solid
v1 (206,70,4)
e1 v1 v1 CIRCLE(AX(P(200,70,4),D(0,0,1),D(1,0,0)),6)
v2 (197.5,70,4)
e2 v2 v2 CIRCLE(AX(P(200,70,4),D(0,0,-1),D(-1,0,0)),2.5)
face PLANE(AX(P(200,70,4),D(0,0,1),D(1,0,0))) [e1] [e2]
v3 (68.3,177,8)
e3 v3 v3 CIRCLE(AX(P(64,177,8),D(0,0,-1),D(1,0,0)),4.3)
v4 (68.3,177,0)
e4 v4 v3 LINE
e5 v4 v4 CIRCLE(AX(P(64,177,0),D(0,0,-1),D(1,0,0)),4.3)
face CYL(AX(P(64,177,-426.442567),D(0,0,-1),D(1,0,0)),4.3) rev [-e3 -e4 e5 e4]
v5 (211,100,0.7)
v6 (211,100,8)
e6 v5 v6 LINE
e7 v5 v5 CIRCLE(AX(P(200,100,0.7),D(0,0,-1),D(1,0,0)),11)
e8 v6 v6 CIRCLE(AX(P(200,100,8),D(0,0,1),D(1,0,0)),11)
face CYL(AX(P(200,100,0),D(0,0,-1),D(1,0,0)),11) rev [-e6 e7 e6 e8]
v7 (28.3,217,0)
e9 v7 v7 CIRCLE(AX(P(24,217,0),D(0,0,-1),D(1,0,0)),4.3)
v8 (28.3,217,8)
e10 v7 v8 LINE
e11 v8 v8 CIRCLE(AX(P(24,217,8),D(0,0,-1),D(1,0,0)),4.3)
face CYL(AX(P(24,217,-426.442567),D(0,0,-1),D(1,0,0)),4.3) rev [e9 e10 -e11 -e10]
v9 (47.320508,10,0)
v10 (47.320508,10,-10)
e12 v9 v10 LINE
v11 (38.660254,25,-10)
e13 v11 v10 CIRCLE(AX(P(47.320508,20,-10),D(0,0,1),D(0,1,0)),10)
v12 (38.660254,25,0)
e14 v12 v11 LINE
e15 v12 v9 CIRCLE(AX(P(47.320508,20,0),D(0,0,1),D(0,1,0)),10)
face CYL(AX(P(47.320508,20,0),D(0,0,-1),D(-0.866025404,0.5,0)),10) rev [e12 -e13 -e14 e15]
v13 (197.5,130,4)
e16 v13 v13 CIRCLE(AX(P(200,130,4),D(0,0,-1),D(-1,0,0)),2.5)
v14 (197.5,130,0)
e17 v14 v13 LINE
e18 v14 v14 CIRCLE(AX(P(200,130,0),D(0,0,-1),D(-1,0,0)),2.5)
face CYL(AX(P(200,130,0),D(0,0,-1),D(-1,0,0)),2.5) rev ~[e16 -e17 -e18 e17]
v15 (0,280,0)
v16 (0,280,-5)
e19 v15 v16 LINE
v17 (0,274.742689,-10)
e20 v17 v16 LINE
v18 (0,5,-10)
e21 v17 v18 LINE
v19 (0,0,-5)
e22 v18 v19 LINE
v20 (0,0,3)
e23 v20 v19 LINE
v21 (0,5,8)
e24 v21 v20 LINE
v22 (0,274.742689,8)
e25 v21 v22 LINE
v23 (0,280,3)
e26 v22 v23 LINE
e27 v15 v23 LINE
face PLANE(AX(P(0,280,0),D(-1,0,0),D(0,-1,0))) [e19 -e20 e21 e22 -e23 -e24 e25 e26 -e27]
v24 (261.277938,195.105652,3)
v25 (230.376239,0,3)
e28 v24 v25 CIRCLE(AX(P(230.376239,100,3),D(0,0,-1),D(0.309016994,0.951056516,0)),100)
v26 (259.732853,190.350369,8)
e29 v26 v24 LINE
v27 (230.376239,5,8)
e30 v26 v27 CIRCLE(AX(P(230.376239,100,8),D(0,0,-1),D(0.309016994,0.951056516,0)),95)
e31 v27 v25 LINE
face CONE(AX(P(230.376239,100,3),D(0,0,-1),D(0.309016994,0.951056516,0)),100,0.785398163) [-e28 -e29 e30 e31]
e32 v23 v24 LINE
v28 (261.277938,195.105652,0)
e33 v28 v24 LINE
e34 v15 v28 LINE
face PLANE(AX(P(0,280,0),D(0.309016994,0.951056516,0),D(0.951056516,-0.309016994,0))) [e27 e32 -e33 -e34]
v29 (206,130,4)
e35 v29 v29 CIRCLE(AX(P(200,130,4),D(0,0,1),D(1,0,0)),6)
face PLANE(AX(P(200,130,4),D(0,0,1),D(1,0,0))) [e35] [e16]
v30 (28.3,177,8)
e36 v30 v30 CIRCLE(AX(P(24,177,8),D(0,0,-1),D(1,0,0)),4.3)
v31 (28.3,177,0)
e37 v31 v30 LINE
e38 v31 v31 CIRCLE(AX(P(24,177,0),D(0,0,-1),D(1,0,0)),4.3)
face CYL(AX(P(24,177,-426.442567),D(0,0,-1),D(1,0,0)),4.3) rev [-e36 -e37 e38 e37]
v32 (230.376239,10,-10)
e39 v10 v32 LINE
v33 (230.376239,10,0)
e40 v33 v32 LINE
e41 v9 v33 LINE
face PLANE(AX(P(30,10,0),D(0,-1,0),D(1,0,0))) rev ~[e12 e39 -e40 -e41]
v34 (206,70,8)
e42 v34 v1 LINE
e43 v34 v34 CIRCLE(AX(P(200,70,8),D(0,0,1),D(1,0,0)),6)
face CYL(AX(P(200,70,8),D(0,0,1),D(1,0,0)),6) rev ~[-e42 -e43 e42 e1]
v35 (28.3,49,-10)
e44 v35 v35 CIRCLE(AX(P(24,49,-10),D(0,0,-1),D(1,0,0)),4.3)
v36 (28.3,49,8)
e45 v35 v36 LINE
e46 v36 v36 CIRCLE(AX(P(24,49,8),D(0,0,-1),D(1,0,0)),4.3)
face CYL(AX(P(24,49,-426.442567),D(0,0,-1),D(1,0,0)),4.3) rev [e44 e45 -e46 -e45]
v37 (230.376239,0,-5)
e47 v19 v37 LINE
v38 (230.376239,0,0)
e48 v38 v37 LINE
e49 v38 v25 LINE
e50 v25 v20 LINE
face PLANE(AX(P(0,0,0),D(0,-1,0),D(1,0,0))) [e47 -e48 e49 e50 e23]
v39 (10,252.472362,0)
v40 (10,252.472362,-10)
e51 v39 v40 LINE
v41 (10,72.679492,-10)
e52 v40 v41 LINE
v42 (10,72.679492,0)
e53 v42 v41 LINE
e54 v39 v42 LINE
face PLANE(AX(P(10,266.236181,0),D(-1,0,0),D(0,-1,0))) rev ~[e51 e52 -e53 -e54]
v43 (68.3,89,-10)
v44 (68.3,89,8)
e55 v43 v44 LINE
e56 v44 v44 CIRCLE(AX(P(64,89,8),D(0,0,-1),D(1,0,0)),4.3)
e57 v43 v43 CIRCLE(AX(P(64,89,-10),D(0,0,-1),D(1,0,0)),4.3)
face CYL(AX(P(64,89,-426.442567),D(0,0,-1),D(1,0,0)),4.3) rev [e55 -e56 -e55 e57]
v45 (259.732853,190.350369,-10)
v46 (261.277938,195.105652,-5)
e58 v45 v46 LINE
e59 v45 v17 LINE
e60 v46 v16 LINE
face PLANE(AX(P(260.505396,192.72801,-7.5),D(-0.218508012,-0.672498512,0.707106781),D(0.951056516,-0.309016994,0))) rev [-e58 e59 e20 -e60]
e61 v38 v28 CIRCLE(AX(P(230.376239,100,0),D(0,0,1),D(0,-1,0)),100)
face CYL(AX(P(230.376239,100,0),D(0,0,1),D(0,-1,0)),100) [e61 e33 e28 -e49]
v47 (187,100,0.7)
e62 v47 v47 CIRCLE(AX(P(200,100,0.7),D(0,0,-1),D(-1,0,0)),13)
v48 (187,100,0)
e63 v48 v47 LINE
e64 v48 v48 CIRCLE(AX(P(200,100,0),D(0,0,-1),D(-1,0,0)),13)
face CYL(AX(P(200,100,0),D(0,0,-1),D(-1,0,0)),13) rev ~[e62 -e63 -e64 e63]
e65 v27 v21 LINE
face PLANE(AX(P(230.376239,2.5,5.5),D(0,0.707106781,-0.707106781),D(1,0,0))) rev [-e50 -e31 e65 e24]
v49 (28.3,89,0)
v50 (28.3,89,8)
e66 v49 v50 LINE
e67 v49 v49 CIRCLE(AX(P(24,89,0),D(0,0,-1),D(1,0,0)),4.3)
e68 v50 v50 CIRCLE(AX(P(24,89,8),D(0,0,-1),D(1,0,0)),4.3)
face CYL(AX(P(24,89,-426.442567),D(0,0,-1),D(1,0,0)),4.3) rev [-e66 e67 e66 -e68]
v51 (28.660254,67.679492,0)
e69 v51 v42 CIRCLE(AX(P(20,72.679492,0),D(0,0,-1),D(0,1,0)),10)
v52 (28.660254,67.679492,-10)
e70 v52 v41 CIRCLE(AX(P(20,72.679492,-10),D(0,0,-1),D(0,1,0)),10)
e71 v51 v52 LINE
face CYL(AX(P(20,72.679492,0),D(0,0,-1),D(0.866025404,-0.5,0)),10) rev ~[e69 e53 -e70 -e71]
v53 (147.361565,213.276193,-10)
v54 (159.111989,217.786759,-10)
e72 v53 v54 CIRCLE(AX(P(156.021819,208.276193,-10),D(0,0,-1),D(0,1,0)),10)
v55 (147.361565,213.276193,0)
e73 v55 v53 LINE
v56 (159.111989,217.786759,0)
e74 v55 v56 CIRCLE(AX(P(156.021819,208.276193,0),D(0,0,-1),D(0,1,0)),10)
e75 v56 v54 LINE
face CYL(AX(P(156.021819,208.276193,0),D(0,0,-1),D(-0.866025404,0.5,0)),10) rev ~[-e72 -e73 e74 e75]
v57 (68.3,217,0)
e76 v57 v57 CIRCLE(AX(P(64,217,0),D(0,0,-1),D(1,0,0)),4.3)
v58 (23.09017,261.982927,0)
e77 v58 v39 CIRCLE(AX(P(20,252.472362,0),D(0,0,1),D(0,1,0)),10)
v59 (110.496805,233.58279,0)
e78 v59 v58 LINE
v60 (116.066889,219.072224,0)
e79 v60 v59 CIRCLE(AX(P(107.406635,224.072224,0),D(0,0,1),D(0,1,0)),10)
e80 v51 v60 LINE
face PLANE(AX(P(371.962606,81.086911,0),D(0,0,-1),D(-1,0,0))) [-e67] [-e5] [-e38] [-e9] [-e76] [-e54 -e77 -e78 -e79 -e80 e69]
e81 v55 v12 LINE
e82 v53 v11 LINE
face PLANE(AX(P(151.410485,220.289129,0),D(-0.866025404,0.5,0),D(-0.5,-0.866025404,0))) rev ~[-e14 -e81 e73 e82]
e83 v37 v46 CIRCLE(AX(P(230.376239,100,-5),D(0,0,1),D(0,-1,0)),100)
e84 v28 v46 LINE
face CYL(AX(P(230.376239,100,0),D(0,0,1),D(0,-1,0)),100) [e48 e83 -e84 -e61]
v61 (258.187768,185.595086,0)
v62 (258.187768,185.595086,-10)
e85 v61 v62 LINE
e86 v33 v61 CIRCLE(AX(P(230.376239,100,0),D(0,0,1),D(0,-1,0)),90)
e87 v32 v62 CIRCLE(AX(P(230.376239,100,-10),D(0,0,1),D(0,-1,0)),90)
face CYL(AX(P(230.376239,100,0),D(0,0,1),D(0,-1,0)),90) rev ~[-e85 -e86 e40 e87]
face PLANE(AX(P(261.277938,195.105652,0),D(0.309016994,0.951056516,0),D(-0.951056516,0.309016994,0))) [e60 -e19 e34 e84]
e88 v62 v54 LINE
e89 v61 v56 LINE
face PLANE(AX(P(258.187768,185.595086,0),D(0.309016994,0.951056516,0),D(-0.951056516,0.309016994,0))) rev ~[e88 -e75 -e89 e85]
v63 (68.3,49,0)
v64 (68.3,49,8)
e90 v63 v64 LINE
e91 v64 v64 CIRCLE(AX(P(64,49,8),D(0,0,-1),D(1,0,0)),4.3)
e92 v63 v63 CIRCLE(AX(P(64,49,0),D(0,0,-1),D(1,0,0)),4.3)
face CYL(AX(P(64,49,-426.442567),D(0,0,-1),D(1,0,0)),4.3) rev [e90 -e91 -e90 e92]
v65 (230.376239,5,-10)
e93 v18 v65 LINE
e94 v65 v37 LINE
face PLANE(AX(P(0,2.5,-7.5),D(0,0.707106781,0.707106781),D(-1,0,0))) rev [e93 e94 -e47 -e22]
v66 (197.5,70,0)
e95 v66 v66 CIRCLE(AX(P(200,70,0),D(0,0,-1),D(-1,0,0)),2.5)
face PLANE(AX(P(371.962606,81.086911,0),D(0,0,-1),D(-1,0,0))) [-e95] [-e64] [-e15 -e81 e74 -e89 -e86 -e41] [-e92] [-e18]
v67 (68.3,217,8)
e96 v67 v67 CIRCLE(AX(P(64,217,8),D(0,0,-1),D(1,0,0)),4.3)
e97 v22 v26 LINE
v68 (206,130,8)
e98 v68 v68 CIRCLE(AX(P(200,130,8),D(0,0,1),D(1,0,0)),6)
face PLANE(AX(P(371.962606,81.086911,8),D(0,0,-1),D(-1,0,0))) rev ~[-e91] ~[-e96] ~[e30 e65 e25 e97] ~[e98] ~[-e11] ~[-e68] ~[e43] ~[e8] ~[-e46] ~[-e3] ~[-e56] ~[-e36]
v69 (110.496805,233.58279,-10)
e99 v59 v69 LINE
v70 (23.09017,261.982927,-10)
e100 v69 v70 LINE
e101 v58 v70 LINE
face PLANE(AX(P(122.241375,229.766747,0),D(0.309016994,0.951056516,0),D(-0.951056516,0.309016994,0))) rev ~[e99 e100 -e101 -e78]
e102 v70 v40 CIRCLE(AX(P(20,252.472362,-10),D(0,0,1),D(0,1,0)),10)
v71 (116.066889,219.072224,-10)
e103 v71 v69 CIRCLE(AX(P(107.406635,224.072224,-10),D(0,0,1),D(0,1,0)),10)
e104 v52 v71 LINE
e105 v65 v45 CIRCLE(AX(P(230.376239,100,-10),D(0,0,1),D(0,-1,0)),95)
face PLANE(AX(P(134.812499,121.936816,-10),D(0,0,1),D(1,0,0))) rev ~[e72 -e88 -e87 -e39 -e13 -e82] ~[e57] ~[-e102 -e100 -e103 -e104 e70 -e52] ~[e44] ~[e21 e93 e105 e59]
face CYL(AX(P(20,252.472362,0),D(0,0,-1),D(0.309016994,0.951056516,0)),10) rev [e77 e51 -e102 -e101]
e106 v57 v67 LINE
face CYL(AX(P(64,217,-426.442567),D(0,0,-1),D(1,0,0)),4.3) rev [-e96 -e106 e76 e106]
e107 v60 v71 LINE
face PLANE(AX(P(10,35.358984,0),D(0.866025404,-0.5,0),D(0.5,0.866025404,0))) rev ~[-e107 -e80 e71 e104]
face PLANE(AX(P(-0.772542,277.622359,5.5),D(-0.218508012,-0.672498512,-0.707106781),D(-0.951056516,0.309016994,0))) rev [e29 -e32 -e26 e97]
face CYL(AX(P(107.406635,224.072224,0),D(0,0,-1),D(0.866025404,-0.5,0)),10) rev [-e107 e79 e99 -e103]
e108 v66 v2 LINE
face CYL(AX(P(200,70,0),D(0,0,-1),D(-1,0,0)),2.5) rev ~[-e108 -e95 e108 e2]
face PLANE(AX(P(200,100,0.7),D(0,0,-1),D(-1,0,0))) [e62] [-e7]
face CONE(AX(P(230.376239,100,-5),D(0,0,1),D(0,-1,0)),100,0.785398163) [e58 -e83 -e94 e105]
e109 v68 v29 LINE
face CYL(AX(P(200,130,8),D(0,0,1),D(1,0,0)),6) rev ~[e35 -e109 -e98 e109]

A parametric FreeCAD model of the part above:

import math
import FreeCAD as App
import Part
import Sketcher

V = App.Vector
Q = App.Units.Quantity


def edges_at(feature, points):
    """Names of the edges that pass closest to the given points."""
    edges = feature.Shape.Edges
    near = lambda p: min(range(len(edges)), key=lambda i: edges[i].distToShape(Part.Vertex(*p))[0])
    return sorted({f"Edge{near(p) + 1}" for p in points})


def add_polygon(sketch, points):
    """Adds a closed chain of lines whose ends are joined by coincident constraints."""
    first, n = sketch.GeometryCount, len(points)
    for a, b in zip(points, points[1:] + points[:1]):
        sketch.addGeometry(Part.LineSegment(App.Vector(*a, 0), App.Vector(*b, 0)), False)
    for i in range(n):
        sketch.addConstraint(Sketcher.Constraint("Coincident", first + i, 2, first + (i + 1) % n, 1))

doc = App.newDocument("Part")
body = doc.addObject("PartDesign::Body", "Body")

# Sketch on XY plane
sketch1 = body.newObject("Sketcher::SketchObject", "Sketch")
sketch1.AttachmentSupport = (doc.getObject("XY_Plane"), [""])
sketch1.MapMode = "FlatFace"
add_polygon(sketch1, [(0, 280), (0, 0), (862, 0)])  # lines 0-2
sketch1.addGeometry(Part.Circle(V(200, 100, 0), V(0, 0, 1), 11), False)  # 3
sketch1.addConstraint([
    Sketcher.Constraint("Vertical", 0),
    Sketcher.Constraint("Horizontal", 1),
    Sketcher.Constraint("Coincident", 0, 2, -1, 1),
    Sketcher.Constraint("Diameter", 3, Q("22 mm")),
    Sketcher.Constraint("DistanceY", 0, 2, 0, 1, Q("280 mm")),
    Sketcher.Constraint("Angle", 2, Q("162 deg")),
    Sketcher.Constraint("DistanceX", -1, 1, 3, 3, Q("200 mm")),
    Sketcher.Constraint("DistanceY", -1, 1, 3, 3, Q("100 mm")),
])
pad1 = body.newObject("PartDesign::Pad", "Pad")
pad1.Profile = sketch1
pad1.Length = 8
doc.recompute()

fillet = body.newObject("PartDesign::Fillet", "Fillet")
fillet.Base = (pad1, edges_at(pad1, [(861.751, 0, 4)]))
fillet.Radius = 100

# Sketch on XY plane
sketch2 = body.newObject("Sketcher::SketchObject", "Sketch001")
sketch2.AttachmentSupport = (doc.getObject("XY_Plane"), [""])
sketch2.MapMode = "FlatFace"
sketch2.addGeometry(Part.LineSegment(V(0, 0, 0), V(230, 0, 0)), False)  # 0
sketch2.addGeometry(Part.ArcOfCircle(Part.Circle(V(230, 100, 0), V(0, 0, 1), 100), math.radians(-90), math.radians(72)), False)  # 1
sketch2.addGeometry(Part.LineSegment(V(261, 195, 0), V(0, 280, 0)), False)  # 2
sketch2.addGeometry(Part.LineSegment(V(0, 280, 0), V(0, 0, 0)), False)  # 3
sketch2.addGeometry(Part.LineSegment(V(230, 10, 0), V(30, 10, 0)), False)  # 4
sketch2.addGeometry(Part.LineSegment(V(30, 10, 0), V(151, 220, 0)), False)  # 5
sketch2.addGeometry(Part.LineSegment(V(151, 220, 0), V(258, 186, 0)), False)  # 6
sketch2.addGeometry(Part.ArcOfCircle(Part.Circle(V(230, 100, 0), V(0, 0, 1), 90), math.radians(-90), math.radians(72)), False)  # 7
add_polygon(sketch2, [(10, 35), (10, 266), (122, 230)])  # lines 8-10
sketch2.addConstraint([
    Sketcher.Constraint("Tangent", 0, 2, 1, 1),
    Sketcher.Constraint("Tangent", 1, 2, 2, 1),
    Sketcher.Constraint("Coincident", 2, 2, 3, 1),
    Sketcher.Constraint("Coincident", 3, 2, 0, 1),
    Sketcher.Constraint("Coincident", 4, 2, 5, 1),
    Sketcher.Constraint("Coincident", 5, 2, 6, 1),
    Sketcher.Constraint("Tangent", 6, 2, 7, 2),
    Sketcher.Constraint("Tangent", 7, 1, 4, 1),
    Sketcher.Constraint("Horizontal", 0),
    Sketcher.Constraint("Vertical", 3),
    Sketcher.Constraint("Horizontal", 4),
    Sketcher.Constraint("Vertical", 8),
    Sketcher.Constraint("Coincident", 3, 2, -1, 1),
    Sketcher.Constraint("Coincident", 7, 3, 1, 3),
    Sketcher.Constraint("Parallel", 2, 6),
    Sketcher.Constraint("Parallel", 6, 9),
    Sketcher.Constraint("Parallel", 5, 10),
    Sketcher.Constraint("Radius", 1, Q("100 mm")),
    Sketcher.Constraint("Radius", 7, Q("90 mm")),
    Sketcher.Constraint("DistanceY", 3, 2, 3, 1, Q("280 mm")),
    Sketcher.Constraint("Angle", 2, Q("162 deg")),
    Sketcher.Constraint("Angle", 5, Q("60 deg")),
    Sketcher.Constraint("DistanceX", -1, 1, 4, 2, Q("30 mm")),
    Sketcher.Constraint("DistanceX", -1, 1, 8, 2, Q("10 mm")),
    Sketcher.Constraint("Distance", 10, Q("224.482749 mm")),
    Sketcher.Constraint("DistanceY", -1, 1, 8, 2, Q("266.236181 mm")),
])
pad2 = body.newObject("PartDesign::Pad", "Pad001")
pad2.Profile = sketch2
pad2.Length = 10
pad2.Reversed = True
doc.recompute()

fillet2 = body.newObject("PartDesign::Fillet", "Fillet001")
fillet2.Base = (pad2, edges_at(pad2, [
    (30, 10, -5),
    (10, 266.236, -5),
    (10, 35.359, -5),
    (122.241, 229.767, -5),
    (151.41, 220.289, -5),
]))
fillet2.Radius = 10
doc.recompute()

chamfer = body.newObject("PartDesign::Chamfer", "Chamfer")
chamfer.Base = (fillet2, edges_at(fillet2, [
    (130.639, 237.553, 8),
    (329.145, 84.357, 8),
    (130.639, 237.553, -10),
    (329.145, 84.357, -10),
    (115.188, 0, -10),
    (115.188, 0, 8),
]))
chamfer.Size = 5

# Sketch on XY plane
sketch3 = body.newObject("Sketcher::SketchObject", "Sketch002")
sketch3.AttachmentSupport = (doc.getObject("XY_Plane"), [""])
sketch3.MapMode = "FlatFace"
sketch3.addGeometry(Part.Circle(V(200, 100, 0), V(0, 0, 1), 13), False)
sketch3.addConstraint([
    Sketcher.Constraint("Diameter", 0, Q("26 mm")),
    Sketcher.Constraint("DistanceX", -1, 1, 0, 3, Q("200 mm")),
    Sketcher.Constraint("DistanceY", -1, 1, 0, 3, Q("100 mm")),
])
pocket1 = body.newObject("PartDesign::Pocket", "Pocket")
pocket1.Profile = sketch3
pocket1.Length = 0.7
pocket1.Reversed = True

# Sketch on XY plane
sketch4 = body.newObject("Sketcher::SketchObject", "Sketch003")
sketch4.AttachmentSupport = (doc.getObject("XY_Plane"), [""])
sketch4.MapMode = "FlatFace"
sketch4.addGeometry([
    Part.Circle(V(200, 130, 0), V(0, 0, 1), 2.5),
    Part.Circle(V(200, 70, 0), V(0, 0, 1), 2.5),
], False)
sketch4.addConstraint([
    Sketcher.Constraint("Equal", 0, 1),
    Sketcher.Constraint("Vertical", 0, 3, 1, 3),
    Sketcher.Constraint("Diameter", 0, Q("5 mm")),
    Sketcher.Constraint("DistanceX", -1, 1, 0, 3, Q("200 mm")),
    Sketcher.Constraint("DistanceY", -1, 1, 0, 3, Q("130 mm")),
    Sketcher.Constraint("DistanceY", -1, 1, 1, 3, Q("70 mm")),
])
pocket2 = body.newObject("PartDesign::Pocket", "Pocket001")
pocket2.Profile = sketch4
pocket2.Type = "ThroughAll"
pocket2.Reversed = True

# Sketch on XY plane
sketch5 = body.newObject("Sketcher::SketchObject", "Sketch004")
sketch5.AttachmentSupport = (doc.getObject("XY_Plane"), [""])
sketch5.MapMode = "FlatFace"
sketch5.AttachmentOffset = App.Placement(V(0, 0, 8), App.Rotation())
sketch5.addGeometry([
    Part.Circle(V(200, 130, 0), V(0, 0, 1), 6),
    Part.Circle(V(200, 70, 0), V(0, 0, 1), 6),
], False)
sketch5.addConstraint([
    Sketcher.Constraint("Equal", 0, 1),
    Sketcher.Constraint("Vertical", 0, 3, 1, 3),
    Sketcher.Constraint("Diameter", 0, Q("12 mm")),
    Sketcher.Constraint("DistanceX", -1, 1, 0, 3, Q("200 mm")),
    Sketcher.Constraint("DistanceY", -1, 1, 0, 3, Q("130 mm")),
    Sketcher.Constraint("DistanceY", -1, 1, 1, 3, Q("70 mm")),
])
pocket3 = body.newObject("PartDesign::Pocket", "Pocket002")
pocket3.Profile = sketch5
pocket3.Length = 4

# Sketch on XY plane
sketch6 = body.newObject("Sketcher::SketchObject", "Sketch005")
sketch6.AttachmentSupport = (doc.getObject("XY_Plane"), [""])
sketch6.MapMode = "FlatFace"
sketch6.AttachmentOffset = App.Placement(V(0, 0, 8), App.Rotation())
sketch6.addGeometry([
    Part.Circle(V(64, 217, 0), V(0, 0, 1), 4.3),  # 0
    Part.Circle(V(24, 217, 0), V(0, 0, 1), 4.3),  # 1
    Part.Circle(V(64, 177, 0), V(0, 0, 1), 4.3),  # 2
    Part.Circle(V(24, 177, 0), V(0, 0, 1), 4.3),  # 3
    Part.Circle(V(64, 89, 0), V(0, 0, 1), 4.3),  # 4
    Part.Circle(V(24, 89, 0), V(0, 0, 1), 4.3),  # 5
    Part.Circle(V(64, 49, 0), V(0, 0, 1), 4.3),  # 6
    Part.Circle(V(24, 49, 0), V(0, 0, 1), 4.3),  # 7
], False)
sketch6.addConstraint([
    Sketcher.Constraint("Equal", 0, 1),
    Sketcher.Constraint("Equal", 1, 2),
    Sketcher.Constraint("Equal", 2, 3),
    Sketcher.Constraint("Equal", 3, 4),
    Sketcher.Constraint("Equal", 4, 5),
    Sketcher.Constraint("Equal", 5, 6),
    Sketcher.Constraint("Equal", 6, 7),
    Sketcher.Constraint("Horizontal", 0, 3, 1, 3),
    Sketcher.Constraint("Horizontal", 2, 3, 3, 3),
    Sketcher.Constraint("Horizontal", 4, 3, 5, 3),
    Sketcher.Constraint("Horizontal", 6, 3, 7, 3),
    Sketcher.Constraint("Vertical", 0, 3, 2, 3),
    Sketcher.Constraint("Vertical", 1, 3, 3, 3),
    Sketcher.Constraint("Vertical", 2, 3, 4, 3),
    Sketcher.Constraint("Vertical", 3, 3, 5, 3),
    Sketcher.Constraint("Vertical", 4, 3, 6, 3),
    Sketcher.Constraint("Vertical", 5, 3, 7, 3),
    Sketcher.Constraint("Diameter", 0, Q("8.6 mm")),
    Sketcher.Constraint("DistanceX", -1, 1, 0, 3, Q("64 mm")),
    Sketcher.Constraint("DistanceY", -1, 1, 0, 3, Q("217 mm")),
    Sketcher.Constraint("DistanceX", -1, 1, 1, 3, Q("24 mm")),
    Sketcher.Constraint("DistanceY", -1, 1, 2, 3, Q("177 mm")),
    Sketcher.Constraint("DistanceY", -1, 1, 4, 3, Q("89 mm")),
    Sketcher.Constraint("DistanceY", -1, 1, 6, 3, Q("49 mm")),
])
pocket4 = body.newObject("PartDesign::Pocket", "Pocket003")
pocket4.Profile = sketch6
pocket4.Type = "ThroughAll"
pocket4.Midplane = True

doc.recompute()
